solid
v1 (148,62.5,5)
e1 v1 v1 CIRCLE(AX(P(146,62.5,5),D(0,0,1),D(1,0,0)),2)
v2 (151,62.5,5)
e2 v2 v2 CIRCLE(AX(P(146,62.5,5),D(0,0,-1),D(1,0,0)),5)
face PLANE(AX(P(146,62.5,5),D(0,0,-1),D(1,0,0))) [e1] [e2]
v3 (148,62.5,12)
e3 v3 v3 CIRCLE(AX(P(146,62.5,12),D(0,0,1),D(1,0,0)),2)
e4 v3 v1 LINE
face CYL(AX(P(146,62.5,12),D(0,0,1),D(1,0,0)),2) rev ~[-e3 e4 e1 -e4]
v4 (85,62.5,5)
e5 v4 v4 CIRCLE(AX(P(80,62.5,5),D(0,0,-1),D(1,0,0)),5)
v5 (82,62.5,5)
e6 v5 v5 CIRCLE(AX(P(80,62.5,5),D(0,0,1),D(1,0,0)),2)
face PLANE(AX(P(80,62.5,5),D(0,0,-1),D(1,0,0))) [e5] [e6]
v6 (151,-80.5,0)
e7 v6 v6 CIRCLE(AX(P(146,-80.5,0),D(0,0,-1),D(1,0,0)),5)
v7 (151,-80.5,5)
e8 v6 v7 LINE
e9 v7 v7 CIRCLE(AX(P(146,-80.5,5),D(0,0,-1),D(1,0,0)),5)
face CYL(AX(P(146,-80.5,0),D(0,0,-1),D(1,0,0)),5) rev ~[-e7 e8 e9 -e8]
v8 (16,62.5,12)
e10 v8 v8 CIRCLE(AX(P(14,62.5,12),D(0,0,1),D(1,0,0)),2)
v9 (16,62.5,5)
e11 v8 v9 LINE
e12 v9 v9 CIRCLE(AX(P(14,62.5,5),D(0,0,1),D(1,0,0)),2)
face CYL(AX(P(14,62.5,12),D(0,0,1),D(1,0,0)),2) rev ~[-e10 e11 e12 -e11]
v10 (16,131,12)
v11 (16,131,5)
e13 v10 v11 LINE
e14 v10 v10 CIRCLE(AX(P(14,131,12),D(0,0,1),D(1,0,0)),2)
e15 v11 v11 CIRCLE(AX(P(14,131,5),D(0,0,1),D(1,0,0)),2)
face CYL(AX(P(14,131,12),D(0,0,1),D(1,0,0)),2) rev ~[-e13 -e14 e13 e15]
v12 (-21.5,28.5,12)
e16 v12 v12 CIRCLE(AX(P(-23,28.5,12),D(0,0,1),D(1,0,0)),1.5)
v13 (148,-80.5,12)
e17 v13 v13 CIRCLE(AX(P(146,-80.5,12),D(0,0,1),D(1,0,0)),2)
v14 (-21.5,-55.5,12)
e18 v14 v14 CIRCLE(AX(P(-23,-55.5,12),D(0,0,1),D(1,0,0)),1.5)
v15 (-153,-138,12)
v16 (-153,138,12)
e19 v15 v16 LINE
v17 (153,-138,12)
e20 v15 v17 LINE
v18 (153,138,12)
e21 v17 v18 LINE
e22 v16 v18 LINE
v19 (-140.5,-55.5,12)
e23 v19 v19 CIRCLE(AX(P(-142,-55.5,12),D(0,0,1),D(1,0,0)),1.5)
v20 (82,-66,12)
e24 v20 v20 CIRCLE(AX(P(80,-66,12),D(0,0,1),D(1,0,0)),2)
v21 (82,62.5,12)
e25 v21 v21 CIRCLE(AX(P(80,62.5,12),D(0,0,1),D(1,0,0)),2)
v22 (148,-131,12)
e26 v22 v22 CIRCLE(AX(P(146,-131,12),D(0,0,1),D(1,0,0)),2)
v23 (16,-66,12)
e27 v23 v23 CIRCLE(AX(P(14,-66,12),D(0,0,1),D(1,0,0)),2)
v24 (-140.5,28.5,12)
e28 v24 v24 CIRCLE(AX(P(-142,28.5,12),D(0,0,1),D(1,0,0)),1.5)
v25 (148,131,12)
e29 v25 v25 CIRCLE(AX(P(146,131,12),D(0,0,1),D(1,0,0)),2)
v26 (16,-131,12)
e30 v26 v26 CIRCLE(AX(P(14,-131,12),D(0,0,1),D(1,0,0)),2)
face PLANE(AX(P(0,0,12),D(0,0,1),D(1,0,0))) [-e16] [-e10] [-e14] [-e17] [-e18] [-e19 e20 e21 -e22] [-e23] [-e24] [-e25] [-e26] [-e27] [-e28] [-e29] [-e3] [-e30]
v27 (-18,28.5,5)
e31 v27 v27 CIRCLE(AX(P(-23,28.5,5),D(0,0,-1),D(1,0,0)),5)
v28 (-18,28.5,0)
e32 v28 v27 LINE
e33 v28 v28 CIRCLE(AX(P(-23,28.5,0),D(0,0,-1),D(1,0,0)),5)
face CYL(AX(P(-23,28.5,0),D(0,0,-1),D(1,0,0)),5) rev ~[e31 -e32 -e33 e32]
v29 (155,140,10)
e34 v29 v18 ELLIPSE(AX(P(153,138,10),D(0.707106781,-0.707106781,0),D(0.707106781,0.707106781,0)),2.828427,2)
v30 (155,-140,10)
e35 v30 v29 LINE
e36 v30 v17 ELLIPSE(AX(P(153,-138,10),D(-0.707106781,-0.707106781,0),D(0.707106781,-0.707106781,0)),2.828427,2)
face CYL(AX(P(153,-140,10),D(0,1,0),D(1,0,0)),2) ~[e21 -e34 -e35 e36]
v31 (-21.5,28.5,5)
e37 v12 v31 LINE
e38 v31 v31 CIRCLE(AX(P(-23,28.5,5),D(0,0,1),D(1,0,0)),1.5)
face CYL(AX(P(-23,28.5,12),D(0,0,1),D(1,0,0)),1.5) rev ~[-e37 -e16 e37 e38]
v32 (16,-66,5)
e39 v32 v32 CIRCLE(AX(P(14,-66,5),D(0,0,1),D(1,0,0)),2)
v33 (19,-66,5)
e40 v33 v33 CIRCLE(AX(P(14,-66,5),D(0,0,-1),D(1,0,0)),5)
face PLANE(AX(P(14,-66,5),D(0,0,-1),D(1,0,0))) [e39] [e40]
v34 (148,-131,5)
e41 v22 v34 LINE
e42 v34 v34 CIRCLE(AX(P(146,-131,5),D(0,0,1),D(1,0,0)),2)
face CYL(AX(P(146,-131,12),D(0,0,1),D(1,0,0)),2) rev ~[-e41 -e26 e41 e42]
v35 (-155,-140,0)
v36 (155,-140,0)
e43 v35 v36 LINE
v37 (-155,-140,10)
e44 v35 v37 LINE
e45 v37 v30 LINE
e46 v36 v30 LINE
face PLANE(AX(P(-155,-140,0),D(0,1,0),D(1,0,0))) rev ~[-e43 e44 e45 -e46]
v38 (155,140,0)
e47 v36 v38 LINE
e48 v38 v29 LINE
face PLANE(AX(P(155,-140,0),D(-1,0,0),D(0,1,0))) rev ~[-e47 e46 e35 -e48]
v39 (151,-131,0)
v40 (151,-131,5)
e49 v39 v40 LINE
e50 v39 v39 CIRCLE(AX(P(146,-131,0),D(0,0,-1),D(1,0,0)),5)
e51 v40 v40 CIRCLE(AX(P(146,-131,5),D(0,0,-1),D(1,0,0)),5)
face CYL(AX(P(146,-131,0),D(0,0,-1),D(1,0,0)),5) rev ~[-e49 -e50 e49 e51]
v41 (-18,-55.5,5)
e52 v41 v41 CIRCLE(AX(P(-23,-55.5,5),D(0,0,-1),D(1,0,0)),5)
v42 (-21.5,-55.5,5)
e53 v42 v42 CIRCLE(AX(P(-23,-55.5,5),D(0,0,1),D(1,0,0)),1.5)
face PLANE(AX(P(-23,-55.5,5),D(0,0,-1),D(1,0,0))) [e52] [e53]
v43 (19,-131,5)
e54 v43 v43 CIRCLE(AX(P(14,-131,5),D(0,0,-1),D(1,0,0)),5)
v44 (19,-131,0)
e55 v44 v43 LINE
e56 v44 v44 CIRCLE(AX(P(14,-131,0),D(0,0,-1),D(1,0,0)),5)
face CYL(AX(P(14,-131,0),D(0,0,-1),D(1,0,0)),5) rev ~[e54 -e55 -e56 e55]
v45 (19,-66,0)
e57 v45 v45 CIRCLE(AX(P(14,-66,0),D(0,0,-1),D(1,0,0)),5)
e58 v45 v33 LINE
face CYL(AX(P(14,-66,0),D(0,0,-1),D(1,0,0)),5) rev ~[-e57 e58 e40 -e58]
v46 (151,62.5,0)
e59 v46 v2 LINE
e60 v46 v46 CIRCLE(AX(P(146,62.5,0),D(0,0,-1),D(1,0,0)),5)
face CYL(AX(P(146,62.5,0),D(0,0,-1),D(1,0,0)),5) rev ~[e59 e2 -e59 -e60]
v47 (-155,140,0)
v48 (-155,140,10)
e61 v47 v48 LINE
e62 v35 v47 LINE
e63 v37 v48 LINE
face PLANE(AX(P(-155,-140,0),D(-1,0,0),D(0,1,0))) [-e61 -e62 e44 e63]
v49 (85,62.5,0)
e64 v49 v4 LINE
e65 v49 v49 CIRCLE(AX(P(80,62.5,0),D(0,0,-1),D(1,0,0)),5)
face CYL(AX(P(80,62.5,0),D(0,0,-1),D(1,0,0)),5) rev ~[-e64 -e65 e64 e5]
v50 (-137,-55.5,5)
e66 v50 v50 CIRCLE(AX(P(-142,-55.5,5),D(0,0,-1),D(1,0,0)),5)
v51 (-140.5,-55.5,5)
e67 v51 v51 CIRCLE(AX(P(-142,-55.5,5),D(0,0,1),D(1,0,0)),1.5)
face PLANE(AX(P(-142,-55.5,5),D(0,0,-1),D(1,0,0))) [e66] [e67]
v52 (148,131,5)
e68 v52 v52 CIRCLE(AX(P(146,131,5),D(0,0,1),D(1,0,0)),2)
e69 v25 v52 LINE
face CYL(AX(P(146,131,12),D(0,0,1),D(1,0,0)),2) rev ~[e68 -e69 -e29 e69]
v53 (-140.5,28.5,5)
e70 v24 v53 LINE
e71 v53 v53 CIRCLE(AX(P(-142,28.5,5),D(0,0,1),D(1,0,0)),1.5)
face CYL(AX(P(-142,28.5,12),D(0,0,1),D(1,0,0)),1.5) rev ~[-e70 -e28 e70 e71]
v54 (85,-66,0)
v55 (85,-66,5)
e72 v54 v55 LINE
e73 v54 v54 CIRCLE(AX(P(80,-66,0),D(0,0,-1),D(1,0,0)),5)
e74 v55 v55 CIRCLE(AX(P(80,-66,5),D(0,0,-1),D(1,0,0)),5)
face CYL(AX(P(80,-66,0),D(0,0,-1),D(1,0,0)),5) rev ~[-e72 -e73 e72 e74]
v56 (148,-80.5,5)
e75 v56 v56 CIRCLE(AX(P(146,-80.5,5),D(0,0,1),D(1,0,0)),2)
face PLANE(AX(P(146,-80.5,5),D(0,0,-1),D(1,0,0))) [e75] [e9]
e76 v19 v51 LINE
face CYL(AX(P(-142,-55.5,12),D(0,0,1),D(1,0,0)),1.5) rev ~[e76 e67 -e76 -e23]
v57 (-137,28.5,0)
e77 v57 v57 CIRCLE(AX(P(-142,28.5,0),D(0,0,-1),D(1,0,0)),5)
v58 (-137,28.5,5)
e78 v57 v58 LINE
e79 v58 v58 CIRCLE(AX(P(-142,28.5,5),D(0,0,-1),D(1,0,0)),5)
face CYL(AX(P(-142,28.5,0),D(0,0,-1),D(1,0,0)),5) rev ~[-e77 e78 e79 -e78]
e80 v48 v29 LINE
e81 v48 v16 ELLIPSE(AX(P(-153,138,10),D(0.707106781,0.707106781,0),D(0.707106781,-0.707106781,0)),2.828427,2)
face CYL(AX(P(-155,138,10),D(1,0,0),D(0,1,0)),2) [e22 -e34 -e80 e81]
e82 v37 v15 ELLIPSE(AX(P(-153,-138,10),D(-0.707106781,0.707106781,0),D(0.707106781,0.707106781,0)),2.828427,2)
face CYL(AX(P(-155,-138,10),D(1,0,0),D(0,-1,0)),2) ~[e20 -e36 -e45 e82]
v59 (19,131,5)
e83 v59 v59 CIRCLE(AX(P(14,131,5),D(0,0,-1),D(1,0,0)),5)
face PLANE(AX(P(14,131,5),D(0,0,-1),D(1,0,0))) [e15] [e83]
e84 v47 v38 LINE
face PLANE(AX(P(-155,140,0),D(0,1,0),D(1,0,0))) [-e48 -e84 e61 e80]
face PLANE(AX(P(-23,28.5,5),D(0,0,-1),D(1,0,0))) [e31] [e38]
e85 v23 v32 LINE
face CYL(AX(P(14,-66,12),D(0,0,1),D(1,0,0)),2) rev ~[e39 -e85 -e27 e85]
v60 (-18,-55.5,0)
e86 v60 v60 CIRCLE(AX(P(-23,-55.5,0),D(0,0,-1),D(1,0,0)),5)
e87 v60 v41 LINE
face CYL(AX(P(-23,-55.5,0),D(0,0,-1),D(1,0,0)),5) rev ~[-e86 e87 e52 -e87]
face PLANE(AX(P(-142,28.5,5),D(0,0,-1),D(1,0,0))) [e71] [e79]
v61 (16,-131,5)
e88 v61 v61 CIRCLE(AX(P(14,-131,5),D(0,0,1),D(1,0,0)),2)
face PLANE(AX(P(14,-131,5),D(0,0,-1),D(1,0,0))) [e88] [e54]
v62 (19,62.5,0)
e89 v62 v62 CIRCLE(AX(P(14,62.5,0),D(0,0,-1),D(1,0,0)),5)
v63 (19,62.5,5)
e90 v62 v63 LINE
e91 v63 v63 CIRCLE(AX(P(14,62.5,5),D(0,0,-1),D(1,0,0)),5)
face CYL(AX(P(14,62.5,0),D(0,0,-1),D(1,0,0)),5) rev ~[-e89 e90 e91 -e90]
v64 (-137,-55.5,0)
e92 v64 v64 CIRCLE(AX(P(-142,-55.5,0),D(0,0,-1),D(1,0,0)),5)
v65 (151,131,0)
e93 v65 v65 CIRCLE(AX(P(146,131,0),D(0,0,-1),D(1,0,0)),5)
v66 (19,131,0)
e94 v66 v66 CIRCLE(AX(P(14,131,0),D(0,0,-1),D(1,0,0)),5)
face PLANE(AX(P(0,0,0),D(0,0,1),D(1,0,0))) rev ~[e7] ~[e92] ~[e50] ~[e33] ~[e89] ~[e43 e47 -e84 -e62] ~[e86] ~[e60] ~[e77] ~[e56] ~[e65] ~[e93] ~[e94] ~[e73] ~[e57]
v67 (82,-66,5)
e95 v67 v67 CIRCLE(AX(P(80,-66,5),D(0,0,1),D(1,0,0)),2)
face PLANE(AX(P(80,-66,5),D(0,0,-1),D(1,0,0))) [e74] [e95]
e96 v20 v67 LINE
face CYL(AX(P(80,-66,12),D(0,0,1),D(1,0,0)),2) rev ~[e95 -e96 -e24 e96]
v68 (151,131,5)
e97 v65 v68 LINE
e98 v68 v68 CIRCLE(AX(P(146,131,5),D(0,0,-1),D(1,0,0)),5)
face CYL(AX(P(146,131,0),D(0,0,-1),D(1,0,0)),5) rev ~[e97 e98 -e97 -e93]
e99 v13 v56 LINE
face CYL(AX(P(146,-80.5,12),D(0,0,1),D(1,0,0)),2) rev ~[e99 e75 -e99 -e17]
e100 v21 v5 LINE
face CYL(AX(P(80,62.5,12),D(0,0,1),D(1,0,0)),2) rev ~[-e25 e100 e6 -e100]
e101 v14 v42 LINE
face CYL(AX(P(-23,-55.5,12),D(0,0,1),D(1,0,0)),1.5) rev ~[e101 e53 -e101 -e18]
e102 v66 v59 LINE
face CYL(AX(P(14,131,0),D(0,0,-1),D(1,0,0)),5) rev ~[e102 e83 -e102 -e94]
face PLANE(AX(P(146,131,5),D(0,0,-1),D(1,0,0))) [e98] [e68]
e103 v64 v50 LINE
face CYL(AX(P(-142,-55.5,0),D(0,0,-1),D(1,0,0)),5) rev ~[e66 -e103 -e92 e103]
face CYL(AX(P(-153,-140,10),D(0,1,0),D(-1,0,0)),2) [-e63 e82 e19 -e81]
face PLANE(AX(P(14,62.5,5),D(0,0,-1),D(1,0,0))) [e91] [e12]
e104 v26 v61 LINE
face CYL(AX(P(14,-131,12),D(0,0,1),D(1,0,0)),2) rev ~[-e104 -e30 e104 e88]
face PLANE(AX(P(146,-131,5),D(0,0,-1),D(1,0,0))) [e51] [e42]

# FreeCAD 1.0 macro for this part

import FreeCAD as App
import Part
import Sketcher
from FreeCAD import Vector


def edges_at(feature, points):
    """Names of the edges that pass closest to the given points."""
    edges = feature.Shape.Edges
    near = lambda p: min(range(len(edges)), key=lambda i: edges[i].distToShape(Part.Vertex(*p))[0])
    return sorted({f"Edge{near(p) + 1}" for p in points})


def add_polygon(sketch, points):
    """Adds a closed chain of lines whose ends are joined by coincident constraints."""
    first, n = sketch.GeometryCount, len(points)
    for a, b in zip(points, points[1:] + points[:1]):
        sketch.addGeometry(Part.LineSegment(App.Vector(*a, 0), App.Vector(*b, 0)), False)
    for i in range(n):
        sketch.addConstraint(Sketcher.Constraint("Coincident", first + i, 2, first + (i + 1) % n, 1))

doc = App.newDocument("Part")
body = doc.addObject("PartDesign::Body", "Body")

sketch1 = body.newObject("Sketcher::SketchObject", "Sketch")
sketch1.AttachmentSupport = (doc.getObject("XY_Plane"), [""])
sketch1.MapMode = "FlatFace"
add_polygon(sketch1, [(-155, 140), (-155, -140), (155, -140), (155, 140)])
sketch1.addConstraint([
    Sketcher.Constraint("Vertical", 0),
    Sketcher.Constraint("Horizontal", 1),
    Sketcher.Constraint("Vertical", 2),
    Sketcher.Constraint("Horizontal", 3),
    Sketcher.Constraint("Symmetric", 0, 2, 2, 2, -1, 1),
    Sketcher.Constraint("DistanceX", 1, 1, 1, 2, 310.0),
    Sketcher.Constraint("DistanceY", 0, 2, 0, 1, 280.0),
])
pad1 = body.newObject("PartDesign::Pad", "Pad")
pad1.Profile = sketch1
pad1.Length = 12
doc.recompute()

fillet = body.newObject("PartDesign::Fillet", "Fillet")
fillet.Base = (pad1, edges_at(pad1, [
    (0, -140, 12),
    (155, 0, 12),
    (0, 140, 12),
    (-155, 0, 12),
]))
fillet.Radius = 2

sketch2 = body.newObject("Sketcher::SketchObject", "Sketch001")
sketch2.AttachmentSupport = (doc.getObject("XY_Plane"), [""])
sketch2.MapMode = "FlatFace"
sketch2.AttachmentOffset = App.Placement(Vector(0, 0, 12), App.Rotation())
sketch2.addGeometry([
    Part.Circle(Vector(14, -131, 0), Vector(0, 0, 1), 2),
    Part.Circle(Vector(14, 131, 0), Vector(0, 0, 1), 2),
    Part.Circle(Vector(146, 131, 0), Vector(0, 0, 1), 2),
    Part.Circle(Vector(146, -131, 0), Vector(0, 0, 1), 2),
    Part.Circle(Vector(146, 62.5, 0), Vector(0, 0, 1), 2),
    Part.Circle(Vector(146, -80.5, 0), Vector(0, 0, 1), 2),
    Part.Circle(Vector(14, -66, 0), Vector(0, 0, 1), 2),
    Part.Circle(Vector(14, 62.5, 0), Vector(0, 0, 1), 2),
    Part.Circle(Vector(80, 62.5, 0), Vector(0, 0, 1), 2),
    Part.Circle(Vector(80, -66, 0), Vector(0, 0, 1), 2),
], False)
sketch2.addConstraint([
    Sketcher.Constraint("Equal", 0, 1),
    Sketcher.Constraint("Equal", 1, 2),
    Sketcher.Constraint("Equal", 2, 3),
    Sketcher.Constraint("Equal", 3, 4),
    Sketcher.Constraint("Equal", 4, 5),
    Sketcher.Constraint("Equal", 5, 6),
    Sketcher.Constraint("Equal", 6, 7),
    Sketcher.Constraint("Equal", 7, 8),
    Sketcher.Constraint("Equal", 8, 9),
    Sketcher.Constraint("Symmetric", 0, 3, 1, 3, -1),
    Sketcher.Constraint("Symmetric", 2, 3, 3, 3, -1),
    Sketcher.Constraint("Horizontal", 1, 3, 2, 3),
    Sketcher.Constraint("Horizontal", 4, 3, 7, 3),
    Sketcher.Constraint("Horizontal", 7, 3, 8, 3),
    Sketcher.Constraint("Horizontal", 6, 3, 9, 3),
    Sketcher.Constraint("Vertical", 3, 3, 4, 3),
    Sketcher.Constraint("Vertical", 4, 3, 5, 3),
    Sketcher.Constraint("Vertical", 1, 3, 6, 3),
    Sketcher.Constraint("Vertical", 6, 3, 7, 3),
    Sketcher.Constraint("Vertical", 8, 3, 9, 3),
    Sketcher.Constraint("Diameter", 0, 4.0),
    Sketcher.Constraint("DistanceX", -1, 1, 0, 3, 14.0),
    Sketcher.Constraint("DistanceY", 0, 3, -1, 1, 131.0),
    Sketcher.Constraint("DistanceX", -1, 1, 2, 3, 146.0),
    Sketcher.Constraint("DistanceY", 6, 3, -1, 1, 66.0),
    Sketcher.Constraint("DistanceX", -1, 1, 8, 3, 80.0),
    Sketcher.Constraint("DistanceY", 5, 3, 4, 3, 143.0),
    Sketcher.Constraint("DistanceY", -1, 1, 4, 3, 62.5),
])
pocket1 = body.newObject("PartDesign::Pocket", "Pocket")
pocket1.Profile = sketch2
pocket1.Length = 25

sketch3 = body.newObject("Sketcher::SketchObject", "Sketch002")
sketch3.AttachmentSupport = (doc.getObject("XY_Plane"), [""])
sketch3.MapMode = "FlatFace"
sketch3.addGeometry([
    Part.Circle(Vector(14, -131, 0), Vector(0, 0, 1), 5),
    Part.Circle(Vector(14, -66, 0), Vector(0, 0, 1), 5),
    Part.Circle(Vector(146, -80.5, 0), Vector(0, 0, 1), 5),
    Part.Circle(Vector(146, -131, 0), Vector(0, 0, 1), 5),
    Part.Circle(Vector(146, 62.5, 0), Vector(0, 0, 1), 5),
    Part.Circle(Vector(14, 62.5, 0), Vector(0, 0, 1), 5),
    Part.Circle(Vector(14, 131, 0), Vector(0, 0, 1), 5),
    Part.Circle(Vector(146, 131, 0), Vector(0, 0, 1), 5),
    Part.Circle(Vector(80, 62.5, 0), Vector(0, 0, 1), 5),
    Part.Circle(Vector(80, -66, 0), Vector(0, 0, 1), 5),
], False)
sketch3.addConstraint([
    Sketcher.Constraint("Equal", 0, 1),
    Sketcher.Constraint("Equal", 1, 2),
    Sketcher.Constraint("Equal", 2, 3),
    Sketcher.Constraint("Equal", 3, 4),
    Sketcher.Constraint("Equal", 4, 5),
    Sketcher.Constraint("Equal", 5, 6),
    Sketcher.Constraint("Equal", 6, 7),
    Sketcher.Constraint("Equal", 7, 8),
    Sketcher.Constraint("Equal", 8, 9),
    Sketcher.Constraint("Symmetric", 0, 3, 6, 3, -1),
    Sketcher.Constraint("Symmetric", 3, 3, 7, 3, -1),
    Sketcher.Constraint("Horizontal", 0, 3, 3, 3),
    Sketcher.Constraint("Horizontal", 4, 3, 5, 3),
    Sketcher.Constraint("Horizontal", 5, 3, 8, 3),
    Sketcher.Constraint("Horizontal", 1, 3, 9, 3),
    Sketcher.Constraint("Vertical", 0, 3, 1, 3),
    Sketcher.Constraint("Vertical", 2, 3, 3, 3),
    Sketcher.Constraint("Vertical", 3, 3, 4, 3),
    Sketcher.Constraint("Vertical", 1, 3, 5, 3),
    Sketcher.Constraint("Vertical", 8, 3, 9, 3),
    Sketcher.Constraint("Diameter", 0, 10.0),
    Sketcher.Constraint("DistanceX", -1, 1, 0, 3, 14.0),
    Sketcher.Constraint("DistanceY", 0, 3, -1, 1, 131.0),
    Sketcher.Constraint("DistanceY", 1, 3, -1, 1, 66.0),
    Sketcher.Constraint("DistanceX", -1, 1, 2, 3, 146.0),
    Sketcher.Constraint("DistanceX", -1, 1, 8, 3, 80.0),
    Sketcher.Constraint("DistanceY", 2, 3, 4, 3, 143.0),
    Sketcher.Constraint("DistanceY", 2, 3, -1, 1, 80.5),
])
pocket2 = body.newObject("PartDesign::Pocket", "Pocket001")
pocket2.Profile = sketch3
pocket2.Length = 5
pocket2.Reversed = True

sketch4 = body.newObject("Sketcher::SketchObject", "Sketch003")
sketch4.AttachmentSupport = (doc.getObject("XY_Plane"), [""])
sketch4.MapMode = "FlatFace"
sketch4.AttachmentOffset = App.Placement(Vector(0, 0, 12), App.Rotation())
sketch4.addGeometry([
    Part.Circle(Vector(-142, 28.5, 0), Vector(0, 0, 1), 1.5),
    Part.Circle(Vector(-23, 28.5, 0), Vector(0, 0, 1), 1.5),
    Part.Circle(Vector(-23, -55.5, 0), Vector(0, 0, 1), 1.5),
    Part.Circle(Vector(-142, -55.5, 0), Vector(0, 0, 1), 1.5),
], False)
sketch4.addConstraint([
    Sketcher.Constraint("Equal", 0, 1),
    Sketcher.Constraint("Equal", 1, 2),
    Sketcher.Constraint("Equal", 2, 3),
    Sketcher.Constraint("Horizontal", 0, 3, 1, 3),
    Sketcher.Constraint("Horizontal", 2, 3, 3, 3),
    Sketcher.Constraint("Vertical", 1, 3, 2, 3),
    Sketcher.Constraint("Vertical", 0, 3, 3, 3),
    Sketcher.Constraint("Diameter", 0, 3.0),
    Sketcher.Constraint("DistanceX", 0, 3, -1, 1, 142.0),
    Sketcher.Constraint("DistanceX", 1, 3, -1, 1, 23.0),
    Sketcher.Constraint("DistanceY", 2, 3, 1, 3, 84.0),
    Sketcher.Constraint("DistanceY", -1, 1, 0, 3, 28.5),
])
pocket3 = body.newObject("PartDesign::Pocket", "Pocket002")
pocket3.Profile = sketch4
pocket3.Length = 25

sketch5 = body.newObject("Sketcher::SketchObject", "Sketch004")
sketch5.AttachmentSupport = (doc.getObject("XY_Plane"), [""])
sketch5.MapMode = "FlatFace"
sketch5.addGeometry([
    Part.Circle(Vector(-142, -55.5, 0), Vector(0, 0, 1), 5),
    Part.Circle(Vector(-142, 28.5, 0), Vector(0, 0, 1), 5),
    Part.Circle(Vector(-23, 28.5, 0), Vector(0, 0, 1), 5),
    Part.Circle(Vector(-23, -55.5, 0), Vector(0, 0, 1), 5),
], False)
sketch5.addConstraint([
    Sketcher.Constraint("Equal", 0, 1),
    Sketcher.Constraint("Equal", 1, 2),
    Sketcher.Constraint("Equal", 2, 3),
    Sketcher.Constraint("Horizontal", 1, 3, 2, 3),
    Sketcher.Constraint("Horizontal", 0, 3, 3, 3),
    Sketcher.Constraint("Vertical", 0, 3, 1, 3),
    Sketcher.Constraint("Vertical", 2, 3, 3, 3),
    Sketcher.Constraint("Diameter", 0, 10.0),
    Sketcher.Constraint("DistanceX", 0, 3, -1, 1, 142.0),
    Sketcher.Constraint("DistanceX", 2, 3, -1, 1, 23.0),
    Sketcher.Constraint("DistanceY", 0, 3, 1, 3, 84.0),
    Sketcher.Constraint("DistanceY", 0, 3, -1, 1, 55.5),
])
pocket4 = body.newObject("PartDesign::Pocket", "Pocket003")
pocket4.Profile = sketch5
pocket4.Length = 5
pocket4.Reversed = True

doc.recompute()
